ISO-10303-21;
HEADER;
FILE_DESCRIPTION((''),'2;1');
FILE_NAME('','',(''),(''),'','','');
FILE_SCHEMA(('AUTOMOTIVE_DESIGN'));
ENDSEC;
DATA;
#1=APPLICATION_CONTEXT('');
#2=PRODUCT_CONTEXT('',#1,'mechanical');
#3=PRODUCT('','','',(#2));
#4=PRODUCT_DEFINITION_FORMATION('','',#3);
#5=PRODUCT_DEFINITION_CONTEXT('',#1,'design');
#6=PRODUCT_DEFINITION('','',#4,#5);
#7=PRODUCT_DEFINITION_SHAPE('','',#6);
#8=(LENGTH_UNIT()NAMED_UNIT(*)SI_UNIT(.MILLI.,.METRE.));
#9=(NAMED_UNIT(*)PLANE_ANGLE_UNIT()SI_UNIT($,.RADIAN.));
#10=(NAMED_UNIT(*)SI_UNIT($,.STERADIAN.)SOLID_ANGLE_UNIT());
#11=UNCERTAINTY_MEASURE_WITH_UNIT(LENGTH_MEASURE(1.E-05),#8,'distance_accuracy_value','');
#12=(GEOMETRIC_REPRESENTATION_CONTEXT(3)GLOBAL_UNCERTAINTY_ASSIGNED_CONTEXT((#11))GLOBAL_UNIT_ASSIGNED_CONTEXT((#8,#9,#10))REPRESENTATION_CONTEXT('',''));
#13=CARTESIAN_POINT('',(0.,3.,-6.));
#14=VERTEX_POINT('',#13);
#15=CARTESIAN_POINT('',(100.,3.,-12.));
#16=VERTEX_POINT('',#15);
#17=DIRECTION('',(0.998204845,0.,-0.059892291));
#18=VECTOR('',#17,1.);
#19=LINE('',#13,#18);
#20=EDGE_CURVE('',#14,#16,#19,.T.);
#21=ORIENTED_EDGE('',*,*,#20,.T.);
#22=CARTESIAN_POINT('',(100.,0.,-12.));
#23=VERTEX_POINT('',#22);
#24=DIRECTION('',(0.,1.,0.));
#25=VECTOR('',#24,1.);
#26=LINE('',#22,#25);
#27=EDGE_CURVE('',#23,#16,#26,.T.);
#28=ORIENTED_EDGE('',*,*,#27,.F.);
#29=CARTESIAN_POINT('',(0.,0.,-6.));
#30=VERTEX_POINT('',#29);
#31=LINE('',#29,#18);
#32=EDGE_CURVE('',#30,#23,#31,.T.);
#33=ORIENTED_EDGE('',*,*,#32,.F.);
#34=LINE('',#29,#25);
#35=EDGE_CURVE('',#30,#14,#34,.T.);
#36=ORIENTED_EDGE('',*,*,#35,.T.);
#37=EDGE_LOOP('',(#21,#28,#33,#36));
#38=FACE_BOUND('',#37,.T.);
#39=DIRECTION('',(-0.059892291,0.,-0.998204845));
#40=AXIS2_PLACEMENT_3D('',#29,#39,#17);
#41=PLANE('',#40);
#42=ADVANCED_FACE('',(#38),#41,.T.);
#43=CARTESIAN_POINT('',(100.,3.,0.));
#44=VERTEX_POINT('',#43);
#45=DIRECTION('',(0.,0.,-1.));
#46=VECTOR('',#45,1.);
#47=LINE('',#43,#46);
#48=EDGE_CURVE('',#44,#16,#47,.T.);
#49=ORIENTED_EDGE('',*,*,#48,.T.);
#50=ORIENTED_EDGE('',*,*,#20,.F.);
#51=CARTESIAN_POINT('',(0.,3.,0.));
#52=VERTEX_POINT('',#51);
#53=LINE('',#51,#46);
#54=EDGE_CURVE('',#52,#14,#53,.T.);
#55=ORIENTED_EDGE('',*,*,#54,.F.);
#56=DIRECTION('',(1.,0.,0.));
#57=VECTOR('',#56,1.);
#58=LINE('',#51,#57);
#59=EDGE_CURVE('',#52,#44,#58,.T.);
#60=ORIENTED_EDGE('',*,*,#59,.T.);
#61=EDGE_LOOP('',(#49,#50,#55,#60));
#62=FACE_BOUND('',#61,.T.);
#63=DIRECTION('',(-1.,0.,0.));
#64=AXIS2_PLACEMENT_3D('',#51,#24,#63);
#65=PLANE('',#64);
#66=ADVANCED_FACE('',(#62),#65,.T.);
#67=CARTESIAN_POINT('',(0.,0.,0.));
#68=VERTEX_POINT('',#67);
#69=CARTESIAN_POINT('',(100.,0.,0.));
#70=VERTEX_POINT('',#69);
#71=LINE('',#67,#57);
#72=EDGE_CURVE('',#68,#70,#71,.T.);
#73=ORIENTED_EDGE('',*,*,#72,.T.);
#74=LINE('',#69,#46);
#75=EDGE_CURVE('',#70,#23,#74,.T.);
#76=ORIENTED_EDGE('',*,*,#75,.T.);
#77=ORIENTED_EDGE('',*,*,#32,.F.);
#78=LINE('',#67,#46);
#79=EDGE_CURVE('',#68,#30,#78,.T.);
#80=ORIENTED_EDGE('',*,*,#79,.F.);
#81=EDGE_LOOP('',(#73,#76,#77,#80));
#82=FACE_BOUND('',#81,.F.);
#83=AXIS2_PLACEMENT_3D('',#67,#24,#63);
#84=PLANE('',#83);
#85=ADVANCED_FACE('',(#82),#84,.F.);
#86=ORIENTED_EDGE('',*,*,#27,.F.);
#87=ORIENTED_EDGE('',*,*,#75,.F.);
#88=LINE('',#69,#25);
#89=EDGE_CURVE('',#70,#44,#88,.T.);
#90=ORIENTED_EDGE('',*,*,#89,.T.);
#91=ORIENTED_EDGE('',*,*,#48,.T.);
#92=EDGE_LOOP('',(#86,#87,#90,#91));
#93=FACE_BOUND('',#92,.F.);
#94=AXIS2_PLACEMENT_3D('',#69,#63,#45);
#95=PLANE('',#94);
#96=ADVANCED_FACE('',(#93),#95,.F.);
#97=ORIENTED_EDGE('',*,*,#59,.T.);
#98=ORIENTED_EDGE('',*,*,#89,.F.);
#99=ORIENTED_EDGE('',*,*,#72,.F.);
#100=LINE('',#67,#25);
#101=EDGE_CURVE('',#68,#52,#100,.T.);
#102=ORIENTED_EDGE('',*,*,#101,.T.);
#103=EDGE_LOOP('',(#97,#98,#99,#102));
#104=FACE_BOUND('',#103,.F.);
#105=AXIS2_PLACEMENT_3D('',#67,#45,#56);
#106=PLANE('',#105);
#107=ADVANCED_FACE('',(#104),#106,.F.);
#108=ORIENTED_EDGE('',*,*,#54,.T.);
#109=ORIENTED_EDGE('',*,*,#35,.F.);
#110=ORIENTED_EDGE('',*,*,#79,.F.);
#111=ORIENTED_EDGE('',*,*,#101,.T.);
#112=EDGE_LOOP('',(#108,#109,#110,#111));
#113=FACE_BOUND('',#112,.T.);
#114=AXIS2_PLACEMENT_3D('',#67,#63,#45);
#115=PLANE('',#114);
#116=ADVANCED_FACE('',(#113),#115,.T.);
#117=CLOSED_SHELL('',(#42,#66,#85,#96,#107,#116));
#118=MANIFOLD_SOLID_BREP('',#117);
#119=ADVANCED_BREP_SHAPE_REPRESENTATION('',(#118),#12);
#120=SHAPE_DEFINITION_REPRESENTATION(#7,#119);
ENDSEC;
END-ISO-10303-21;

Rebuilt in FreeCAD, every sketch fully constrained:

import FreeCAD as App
import Part
import Sketcher
Q = App.Units.Quantity


def add_polygon(sketch, points):
    """Adds a closed chain of lines whose ends are joined by coincident constraints."""
    first, n = sketch.GeometryCount, len(points)
    for a, b in zip(points, points[1:] + points[:1]):
        sketch.addGeometry(Part.LineSegment(App.Vector(*a, 0), App.Vector(*b, 0)), False)
    for i in range(n):
        sketch.addConstraint(Sketcher.Constraint("Coincident", first + i, 2, first + (i + 1) % n, 1))

doc = App.newDocument("Part")
body = doc.addObject("PartDesign::Body", "Body")

sketch1 = body.newObject("Sketcher::SketchObject", "Sketch")
sketch1.AttachmentSupport = (doc.getObject("XZ_Plane"), [""])
sketch1.MapMode = "FlatFace"
add_polygon(sketch1, [(0, -6), (0, 0), (100, 0), (100, -12)])
sketch1.addConstraint([
    Sketcher.Constraint("Vertical", 0),
    Sketcher.Constraint("Horizontal", 1),
    Sketcher.Constraint("Vertical", 2),
    Sketcher.Constraint("Coincident", 0, 2, -1, 1),
    Sketcher.Constraint("DistanceX", 1, 1, 1, 2, Q("100 mm")),
    Sketcher.Constraint("DistanceY", 0, 1, 0, 2, Q("6 mm")),
    Sketcher.Constraint("DistanceY", 2, 2, 2, 1, Q("12 mm")),
])
pad1 = body.newObject("PartDesign::Pad", "Pad")
pad1.Profile = sketch1
pad1.Length = 3
pad1.Reversed = True

doc.recompute()
